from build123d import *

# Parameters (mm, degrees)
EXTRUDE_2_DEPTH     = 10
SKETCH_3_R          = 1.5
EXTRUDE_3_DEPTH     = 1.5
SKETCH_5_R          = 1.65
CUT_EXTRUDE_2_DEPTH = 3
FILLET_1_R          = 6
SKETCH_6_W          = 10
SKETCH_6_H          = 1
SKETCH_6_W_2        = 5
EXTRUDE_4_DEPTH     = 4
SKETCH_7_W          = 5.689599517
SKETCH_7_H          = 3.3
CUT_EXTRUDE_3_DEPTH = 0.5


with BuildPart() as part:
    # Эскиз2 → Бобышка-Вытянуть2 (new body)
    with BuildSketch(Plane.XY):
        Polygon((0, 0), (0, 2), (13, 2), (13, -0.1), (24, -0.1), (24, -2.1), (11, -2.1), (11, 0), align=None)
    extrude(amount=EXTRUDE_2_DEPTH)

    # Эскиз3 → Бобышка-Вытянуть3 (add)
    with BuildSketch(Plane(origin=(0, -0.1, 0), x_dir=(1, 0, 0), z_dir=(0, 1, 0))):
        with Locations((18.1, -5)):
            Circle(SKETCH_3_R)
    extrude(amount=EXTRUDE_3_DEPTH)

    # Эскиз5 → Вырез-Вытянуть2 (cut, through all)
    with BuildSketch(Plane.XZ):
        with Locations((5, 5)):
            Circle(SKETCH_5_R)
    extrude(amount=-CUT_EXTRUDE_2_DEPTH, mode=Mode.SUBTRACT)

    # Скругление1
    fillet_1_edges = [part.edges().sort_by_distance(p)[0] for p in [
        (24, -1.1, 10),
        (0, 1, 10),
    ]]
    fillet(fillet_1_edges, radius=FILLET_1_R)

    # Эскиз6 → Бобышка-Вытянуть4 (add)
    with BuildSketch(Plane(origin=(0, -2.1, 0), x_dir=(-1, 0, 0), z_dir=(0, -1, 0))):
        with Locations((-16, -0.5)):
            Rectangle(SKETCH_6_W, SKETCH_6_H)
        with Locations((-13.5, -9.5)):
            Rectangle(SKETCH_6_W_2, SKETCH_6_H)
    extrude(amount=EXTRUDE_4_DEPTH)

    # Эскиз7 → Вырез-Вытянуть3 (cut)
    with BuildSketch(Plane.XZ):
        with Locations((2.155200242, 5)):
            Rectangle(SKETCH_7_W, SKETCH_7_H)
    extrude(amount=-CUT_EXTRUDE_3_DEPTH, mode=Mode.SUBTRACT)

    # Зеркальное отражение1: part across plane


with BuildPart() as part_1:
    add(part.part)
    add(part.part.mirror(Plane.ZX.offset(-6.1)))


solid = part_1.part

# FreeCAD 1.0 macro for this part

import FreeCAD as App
import Part
import Sketcher
Q = App.Units.Quantity


def edges_at(feature, points):
    """Names of the edges that pass closest to the given points."""
    edges = feature.Shape.Edges
    near = lambda p: min(range(len(edges)), key=lambda i: edges[i].distToShape(Part.Vertex(*p))[0])
    return sorted({f"Edge{near(p) + 1}" for p in points})

doc = App.newDocument("Part")
params = doc.addObject("Spreadsheet::Sheet", "Params")
for row, (alias, value) in enumerate([
    ("sketch1_width", "11 mm"),
    ("sketch1_width2", "13 mm"),
    ("sketch1_height", "2 mm"),
    ("sketch1_height2", "2.1 mm"),
    ("pad1_length", "10 mm"),
    ("sketch2_diameter", "3 mm"),
    ("pad2_length", "1.5 mm"),
    ("sketch3_diameter", "3.3 mm"),
    ("fillet_radius", "6 mm"),
    ("sketch4_width", "10 mm"),
    ("sketch4_width2", "5 mm"),
    ("sketch4_height", "1 mm"),
    ("pad3_length", "4 mm"),
    ("sketch5_height", "3.3 mm"),
    ("pocket2_length", "0.5 mm"),
], start=1):
    params.set(f"A{row}", alias)
    params.set(f"B{row}", "=" + value)
    params.setAlias(f"B{row}", alias)

body = doc.addObject("PartDesign::Body", "Body")

# Sketch on XY plane
sketch1 = doc.addObject("Sketcher::SketchObject", "Sketch")
body.addObject(sketch1)
sketch1.AttachmentSupport = (doc.XY_Plane, [""])
sketch1.MapMode = "FlatFace"
sketch1.addGeometry(Part.LineSegment(App.Vector(0, 2, 0), App.Vector(0, 0, 0)), False)
sketch1.addGeometry(Part.LineSegment(App.Vector(0, 0, 0), App.Vector(11, 0, 0)), False)
sketch1.addGeometry(Part.LineSegment(App.Vector(11, 0, 0), App.Vector(11, -2.1, 0)), False)
sketch1.addGeometry(Part.LineSegment(App.Vector(11, -2.1, 0), App.Vector(24, -2.1, 0)), False)
sketch1.addGeometry(Part.LineSegment(App.Vector(24, -2.1, 0), App.Vector(24, -0.1, 0)), False)
sketch1.addGeometry(Part.LineSegment(App.Vector(24, -0.1, 0), App.Vector(13, -0.1, 0)), False)
sketch1.addGeometry(Part.LineSegment(App.Vector(13, -0.1, 0), App.Vector(13, 2, 0)), False)
sketch1.addGeometry(Part.LineSegment(App.Vector(13, 2, 0), App.Vector(0, 2, 0)), False)
sketch1.addConstraint(Sketcher.Constraint("Coincident", 0, 2, 1, 1))
sketch1.addConstraint(Sketcher.Constraint("Coincident", 1, 2, 2, 1))
sketch1.addConstraint(Sketcher.Constraint("Coincident", 2, 2, 3, 1))
sketch1.addConstraint(Sketcher.Constraint("Coincident", 3, 2, 4, 1))
sketch1.addConstraint(Sketcher.Constraint("Coincident", 4, 2, 5, 1))
sketch1.addConstraint(Sketcher.Constraint("Coincident", 5, 2, 6, 1))
sketch1.addConstraint(Sketcher.Constraint("Coincident", 6, 2, 7, 1))
sketch1.addConstraint(Sketcher.Constraint("Coincident", 7, 2, 0, 1))
sketch1.addConstraint(Sketcher.Constraint("Vertical", 0))
sketch1.addConstraint(Sketcher.Constraint("Horizontal", 1))
sketch1.addConstraint(Sketcher.Constraint("Vertical", 2))
sketch1.addConstraint(Sketcher.Constraint("Horizontal", 3))
sketch1.addConstraint(Sketcher.Constraint("Vertical", 4))
sketch1.addConstraint(Sketcher.Constraint("Horizontal", 5))
sketch1.addConstraint(Sketcher.Constraint("Vertical", 6))
sketch1.addConstraint(Sketcher.Constraint("Horizontal", 7))
sketch1.addConstraint(Sketcher.Constraint("Coincident", 0, 2, -1, 1))
sketch1.addConstraint(Sketcher.Constraint("Equal", 1, 5))
sketch1.addConstraint(Sketcher.Constraint("Equal", 0, 4))
sketch1.addConstraint(Sketcher.Constraint("DistanceX", 1, 1, 1, 2, Q("11 mm")))
sketch1.addConstraint(Sketcher.Constraint("DistanceX", 3, 1, 3, 2, Q("13 mm")))
sketch1.addConstraint(Sketcher.Constraint("DistanceY", 0, 2, 0, 1, Q("2 mm")))
sketch1.addConstraint(Sketcher.Constraint("DistanceY", 2, 2, 2, 1, Q("2.1 mm")))
sketch1.setExpression("Constraints[19]", "Params.sketch1_width")
sketch1.setExpression("Constraints[20]", "Params.sketch1_width2")
sketch1.setExpression("Constraints[21]", "Params.sketch1_height")
sketch1.setExpression("Constraints[22]", "Params.sketch1_height2")
pad1 = doc.addObject("PartDesign::Pad", "Pad")
body.addObject(pad1)
pad1.Profile = sketch1
pad1.setExpression("Length", "Params.pad1_length")

# Sketch on XZ plane
sketch2 = doc.addObject("Sketcher::SketchObject", "Sketch001")
body.addObject(sketch2)
sketch2.AttachmentSupport = (doc.XZ_Plane, [""])
sketch2.MapMode = "FlatFace"
sketch2.AttachmentOffset = App.Placement(App.Vector(0, 0, 0.1), App.Rotation())
sketch2.addGeometry(Part.Circle(App.Vector(18.1, 5, 0), App.Vector(0, 0, 1), 1.5), False)
sketch2.addConstraint(Sketcher.Constraint("Diameter", 0, Q("3 mm")))
sketch2.addConstraint(Sketcher.Constraint("DistanceY", -1, 1, 0, 3, Q("5 mm")))
sketch2.addConstraint(Sketcher.Constraint("DistanceX", -1, 1, 0, 3, Q("18.1 mm")))
sketch2.setExpression("Constraints[0]", "Params.sketch2_diameter")
pad2 = doc.addObject("PartDesign::Pad", "Pad001")
body.addObject(pad2)
pad2.Profile = sketch2
pad2.setExpression("Length", "Params.pad2_length")
pad2.Reversed = True

# Sketch on XZ plane
sketch3 = doc.addObject("Sketcher::SketchObject", "Sketch002")
body.addObject(sketch3)
sketch3.AttachmentSupport = (doc.XZ_Plane, [""])
sketch3.MapMode = "FlatFace"
sketch3.addGeometry(Part.Circle(App.Vector(5, 5, 0), App.Vector(0, 0, 1), 1.6), False)
sketch3.addConstraint(Sketcher.Constraint("Diameter", 0, Q("3.3 mm")))
sketch3.addConstraint(Sketcher.Constraint("DistanceX", -1, 1, 0, 3, Q("5 mm")))
sketch3.addConstraint(Sketcher.Constraint("DistanceY", -1, 1, 0, 3, Q("5 mm")))
sketch3.setExpression("Constraints[0]", "Params.sketch3_diameter")
pocket1 = doc.addObject("PartDesign::Pocket", "Pocket")
body.addObject(pocket1)
pocket1.Profile = sketch3
pocket1.Type = "ThroughAll"
doc.recompute()

fillet = doc.addObject("PartDesign::Fillet", "Fillet")
body.addObject(fillet)
fillet.Base = (pocket1, edges_at(pocket1, [(24, -1.1, 10), (0, 1, 10)]))
fillet.setExpression("Radius", "Params.fillet_radius")

# Sketch on XZ plane
sketch4 = doc.addObject("Sketcher::SketchObject", "Sketch003")
body.addObject(sketch4)
sketch4.AttachmentSupport = (doc.XZ_Plane, [""])
sketch4.MapMode = "FlatFace"
sketch4.AttachmentOffset = App.Placement(App.Vector(0, 0, 2.1), App.Rotation())
sketch4.addGeometry(Part.LineSegment(App.Vector(21, 0, 0), App.Vector(21, 1, 0)), False)
sketch4.addGeometry(Part.LineSegment(App.Vector(21, 1, 0), App.Vector(11, 1, 0)), False)
sketch4.addGeometry(Part.LineSegment(App.Vector(11, 1, 0), App.Vector(11, 0, 0)), False)
sketch4.addGeometry(Part.LineSegment(App.Vector(11, 0, 0), App.Vector(21, 0, 0)), False)
sketch4.addGeometry(Part.LineSegment(App.Vector(16, 9, 0), App.Vector(16, 10, 0)), False)
sketch4.addGeometry(Part.LineSegment(App.Vector(16, 10, 0), App.Vector(11, 10, 0)), False)
sketch4.addGeometry(Part.LineSegment(App.Vector(11, 10, 0), App.Vector(11, 9, 0)), False)
sketch4.addGeometry(Part.LineSegment(App.Vector(11, 9, 0), App.Vector(16, 9, 0)), False)
sketch4.addConstraint(Sketcher.Constraint("Coincident", 0, 2, 1, 1))
sketch4.addConstraint(Sketcher.Constraint("Coincident", 1, 2, 2, 1))
sketch4.addConstraint(Sketcher.Constraint("Coincident", 2, 2, 3, 1))
sketch4.addConstraint(Sketcher.Constraint("Coincident", 3, 2, 0, 1))
sketch4.addConstraint(Sketcher.Constraint("Coincident", 4, 2, 5, 1))
sketch4.addConstraint(Sketcher.Constraint("Coincident", 5, 2, 6, 1))
sketch4.addConstraint(Sketcher.Constraint("Coincident", 6, 2, 7, 1))
sketch4.addConstraint(Sketcher.Constraint("Coincident", 7, 2, 4, 1))
sketch4.addConstraint(Sketcher.Constraint("Vertical", 0))
sketch4.addConstraint(Sketcher.Constraint("Horizontal", 1))
sketch4.addConstraint(Sketcher.Constraint("Vertical", 2))
sketch4.addConstraint(Sketcher.Constraint("Horizontal", 3))
sketch4.addConstraint(Sketcher.Constraint("Vertical", 4))
sketch4.addConstraint(Sketcher.Constraint("Horizontal", 5))
sketch4.addConstraint(Sketcher.Constraint("Vertical", 6))
sketch4.addConstraint(Sketcher.Constraint("Horizontal", 7))
sketch4.addConstraint(Sketcher.Constraint("PointOnObject", 2, 2, -1))
sketch4.addConstraint(Sketcher.Constraint("Vertical", 2, 2, 5, 2))
sketch4.addConstraint(Sketcher.Constraint("Equal", 2, 4))
sketch4.addConstraint(Sketcher.Constraint("DistanceX", 1, 2, 1, 1, Q("10 mm")))
sketch4.addConstraint(Sketcher.Constraint("DistanceX", 5, 2, 5, 1, Q("5 mm")))
sketch4.addConstraint(Sketcher.Constraint("DistanceY", 0, 1, 0, 2, Q("1 mm")))
sketch4.addConstraint(Sketcher.Constraint("DistanceX", -1, 1, 0, 2, Q("21 mm")))
sketch4.addConstraint(Sketcher.Constraint("DistanceY", -1, 1, 4, 2, Q("10 mm")))
sketch4.setExpression("Constraints[19]", "Params.sketch4_width")
sketch4.setExpression("Constraints[20]", "Params.sketch4_width2")
sketch4.setExpression("Constraints[21]", "Params.sketch4_height")
pad3 = doc.addObject("PartDesign::Pad", "Pad002")
body.addObject(pad3)
pad3.Profile = sketch4
pad3.setExpression("Length", "Params.pad3_length")

# Sketch on XZ plane
sketch5 = doc.addObject("Sketcher::SketchObject", "Sketch004")
body.addObject(sketch5)
sketch5.AttachmentSupport = (doc.XZ_Plane, [""])
sketch5.MapMode = "FlatFace"
sketch5.addGeometry(Part.LineSegment(App.Vector(-0.7, 6.7, 0), App.Vector(-0.7, 3.4, 0)), False)
sketch5.addGeometry(Part.LineSegment(App.Vector(-0.7, 3.4, 0), App.Vector(5, 3.4, 0)), False)
sketch5.addGeometry(Part.LineSegment(App.Vector(5, 3.4, 0), App.Vector(5, 6.7, 0)), False)
sketch5.addGeometry(Part.LineSegment(App.Vector(5, 6.7, 0), App.Vector(-0.7, 6.7, 0)), False)
sketch5.addConstraint(Sketcher.Constraint("Coincident", 0, 2, 1, 1))
sketch5.addConstraint(Sketcher.Constraint("Coincident", 1, 2, 2, 1))
sketch5.addConstraint(Sketcher.Constraint("Coincident", 2, 2, 3, 1))
sketch5.addConstraint(Sketcher.Constraint("Coincident", 3, 2, 0, 1))
sketch5.addConstraint(Sketcher.Constraint("Vertical", 0))
sketch5.addConstraint(Sketcher.Constraint("Horizontal", 1))
sketch5.addConstraint(Sketcher.Constraint("Vertical", 2))
sketch5.addConstraint(Sketcher.Constraint("Horizontal", 3))
sketch5.addConstraint(Sketcher.Constraint("DistanceY", 0, 2, 0, 1, Q("3.3 mm")))
sketch5.addConstraint(Sketcher.Constraint("DistanceX", -1, 1, 1, 2, Q("5 mm")))
sketch5.addConstraint(Sketcher.Constraint("DistanceY", -1, 1, 0, 2, Q("3.35 mm")))
sketch5.addConstraint(Sketcher.Constraint("DistanceX", 1, 1, 1, 2, Q("5.6896 mm")))
sketch5.setExpression("Constraints[8]", "Params.sketch5_height")
pocket2 = doc.addObject("PartDesign::Pocket", "Pocket001")
body.addObject(pocket2)
pocket2.Profile = sketch5
pocket2.setExpression("Length", "Params.pocket2_length")
body2 = doc.addObject("PartDesign::Body", "Body001")
doc.recompute()

body2.BaseFeature = body
doc.recompute()

mirroring = doc.addObject("Part::Mirroring", "Mirroring")
mirroring.Source = body
mirroring.Base = App.Vector(0, -6.1, 0)
mirroring.Normal = App.Vector(0, 1, 0)
body3 = doc.addObject("PartDesign::Body", "Body002")
body3.BaseFeature = mirroring
boolean = doc.addObject("PartDesign::Boolean", "Boolean")
body2.addObject(boolean)
boolean.Type = "Fuse"
boolean.addObjects([body3])
doc.recompute()
mirroring.Visibility = False

doc.recompute()
